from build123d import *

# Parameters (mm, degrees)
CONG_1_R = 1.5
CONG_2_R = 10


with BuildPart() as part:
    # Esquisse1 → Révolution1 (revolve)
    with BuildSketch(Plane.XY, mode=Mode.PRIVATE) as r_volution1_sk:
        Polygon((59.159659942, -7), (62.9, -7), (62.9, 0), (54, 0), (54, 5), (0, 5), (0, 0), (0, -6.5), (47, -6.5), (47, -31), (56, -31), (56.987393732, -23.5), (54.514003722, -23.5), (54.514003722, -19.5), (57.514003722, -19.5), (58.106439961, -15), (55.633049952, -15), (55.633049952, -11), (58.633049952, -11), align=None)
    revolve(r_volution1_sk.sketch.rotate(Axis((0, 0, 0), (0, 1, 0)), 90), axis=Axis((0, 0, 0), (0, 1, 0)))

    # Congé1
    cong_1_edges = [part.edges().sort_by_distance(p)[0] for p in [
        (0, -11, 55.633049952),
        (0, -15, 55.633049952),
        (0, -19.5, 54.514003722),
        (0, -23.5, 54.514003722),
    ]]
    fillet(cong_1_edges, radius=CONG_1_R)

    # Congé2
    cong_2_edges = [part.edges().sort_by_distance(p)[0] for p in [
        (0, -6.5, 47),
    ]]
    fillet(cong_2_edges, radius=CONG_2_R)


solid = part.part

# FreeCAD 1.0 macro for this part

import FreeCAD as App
import Part
import Sketcher
from FreeCAD import Vector
Q = App.Units.Quantity


def edges_at(feature, points):
    """Names of the edges that pass closest to the given points."""
    edges = feature.Shape.Edges
    near = lambda p: min(range(len(edges)), key=lambda i: edges[i].distToShape(Part.Vertex(*p))[0])
    return sorted({f"Edge{near(p) + 1}" for p in points})


def add_polygon(sketch, points):
    """Adds a closed chain of lines whose ends are joined by coincident constraints."""
    first, n = sketch.GeometryCount, len(points)
    for a, b in zip(points, points[1:] + points[:1]):
        sketch.addGeometry(Part.LineSegment(App.Vector(*a, 0), App.Vector(*b, 0)), False)
    for i in range(n):
        sketch.addConstraint(Sketcher.Constraint("Coincident", first + i, 2, first + (i + 1) % n, 1))

doc = App.newDocument("Part")
body = doc.addObject("PartDesign::Body", "Body")

# Sketch on XY plane
sketch1 = body.newObject("Sketcher::SketchObject", "Sketch")
sketch1.AttachmentSupport = (doc.getObject("XY_Plane"), [""])
sketch1.MapMode = "FlatFace"
add_polygon(sketch1, [(59.2, -7), (62.9, -7), (62.9, 0), (54, 0), (54, 5), (0, 5), (0, -6.5), (47, -6.5), (47, -31), (56, -31), (57, -23.5), (54.5, -23.5), (54.5, -19.5), (57.5, -19.5), (58.1, -15), (55.6, -15), (55.6, -11), (58.6, -11)])  # lines 0-17
sketch1.addConstraint([
    Sketcher.Constraint("Horizontal", 0),
    Sketcher.Constraint("Vertical", 1),
    Sketcher.Constraint("Horizontal", 2),
    Sketcher.Constraint("Vertical", 3),
    Sketcher.Constraint("Horizontal", 4),
    Sketcher.Constraint("Vertical", 5),
    Sketcher.Constraint("Horizontal", 6),
    Sketcher.Constraint("Vertical", 7),
    Sketcher.Constraint("Horizontal", 8),
    Sketcher.Constraint("Horizontal", 10),
    Sketcher.Constraint("Vertical", 11),
    Sketcher.Constraint("Horizontal", 12),
    Sketcher.Constraint("Horizontal", 14),
    Sketcher.Constraint("Vertical", 15),
    Sketcher.Constraint("Horizontal", 16),
    Sketcher.Constraint("PointOnObject", 1, 2, -1),
    Sketcher.Constraint("PointOnObject", 4, 2, -2),
    Sketcher.Constraint("Parallel", 9, 13),
    Sketcher.Constraint("Parallel", 13, 17),
    Sketcher.Constraint("Equal", 10, 14),
    Sketcher.Constraint("Equal", 12, 16),
    Sketcher.Constraint("Equal", 11, 15),
    Sketcher.Constraint("DistanceX", 4, 2, 4, 1, Q("54 mm")),
    Sketcher.Constraint("DistanceX", 6, 1, 6, 2, Q("47 mm")),
    Sketcher.Constraint("DistanceX", 8, 1, 8, 2, Q("9 mm")),
    Sketcher.Constraint("DistanceX", 12, 1, 12, 2, Q("3 mm")),
    Sketcher.Constraint("DistanceY", 1, 1, 1, 2, Q("7 mm")),
    Sketcher.Constraint("DistanceY", 3, 1, 3, 2, Q("5 mm")),
    Sketcher.Constraint("DistanceY", 11, 1, 11, 2, Q("4 mm")),
    Sketcher.Constraint("DistanceX", 2, 2, 2, 1, Q("8.9 mm")),
    Sketcher.Constraint("DistanceY", 5, 2, 5, 1, Q("11.5 mm")),
    Sketcher.Constraint("DistanceY", 7, 2, 7, 1, Q("24.5 mm")),
    Sketcher.Constraint("DistanceY", 13, 2, -1, 1, Q("15 mm")),
    Sketcher.Constraint("Angle", 9, Q("82.5 deg")),
    Sketcher.Constraint("DistanceY", 9, 2, 6, 2, Q("17 mm")),
    Sketcher.Constraint("DistanceX", 0, 1, 0, 2, Q("3.74034 mm")),
])
revolution = body.newObject("PartDesign::Revolution", "Revolution")
revolution.Profile = sketch1
revolution.ReferenceAxis = (sketch1, ["V_Axis"])
revolution.Angle = 360
doc.recompute()

fillet = body.newObject("PartDesign::Fillet", "Fillet")
fillet.Base = (revolution, edges_at(revolution, [
    (0, -11, 55.633),
    (0, -15, 55.633),
    (0, -19.5, 54.514),
    (0, -23.5, 54.514),
]))
fillet.Radius = 1.5
doc.recompute()

fillet2 = body.newObject("PartDesign::Fillet", "Fillet001")
fillet2.Base = (fillet, edges_at(fillet, [(0, -6.5, 47)]))
fillet2.Radius = 10

doc.recompute()
